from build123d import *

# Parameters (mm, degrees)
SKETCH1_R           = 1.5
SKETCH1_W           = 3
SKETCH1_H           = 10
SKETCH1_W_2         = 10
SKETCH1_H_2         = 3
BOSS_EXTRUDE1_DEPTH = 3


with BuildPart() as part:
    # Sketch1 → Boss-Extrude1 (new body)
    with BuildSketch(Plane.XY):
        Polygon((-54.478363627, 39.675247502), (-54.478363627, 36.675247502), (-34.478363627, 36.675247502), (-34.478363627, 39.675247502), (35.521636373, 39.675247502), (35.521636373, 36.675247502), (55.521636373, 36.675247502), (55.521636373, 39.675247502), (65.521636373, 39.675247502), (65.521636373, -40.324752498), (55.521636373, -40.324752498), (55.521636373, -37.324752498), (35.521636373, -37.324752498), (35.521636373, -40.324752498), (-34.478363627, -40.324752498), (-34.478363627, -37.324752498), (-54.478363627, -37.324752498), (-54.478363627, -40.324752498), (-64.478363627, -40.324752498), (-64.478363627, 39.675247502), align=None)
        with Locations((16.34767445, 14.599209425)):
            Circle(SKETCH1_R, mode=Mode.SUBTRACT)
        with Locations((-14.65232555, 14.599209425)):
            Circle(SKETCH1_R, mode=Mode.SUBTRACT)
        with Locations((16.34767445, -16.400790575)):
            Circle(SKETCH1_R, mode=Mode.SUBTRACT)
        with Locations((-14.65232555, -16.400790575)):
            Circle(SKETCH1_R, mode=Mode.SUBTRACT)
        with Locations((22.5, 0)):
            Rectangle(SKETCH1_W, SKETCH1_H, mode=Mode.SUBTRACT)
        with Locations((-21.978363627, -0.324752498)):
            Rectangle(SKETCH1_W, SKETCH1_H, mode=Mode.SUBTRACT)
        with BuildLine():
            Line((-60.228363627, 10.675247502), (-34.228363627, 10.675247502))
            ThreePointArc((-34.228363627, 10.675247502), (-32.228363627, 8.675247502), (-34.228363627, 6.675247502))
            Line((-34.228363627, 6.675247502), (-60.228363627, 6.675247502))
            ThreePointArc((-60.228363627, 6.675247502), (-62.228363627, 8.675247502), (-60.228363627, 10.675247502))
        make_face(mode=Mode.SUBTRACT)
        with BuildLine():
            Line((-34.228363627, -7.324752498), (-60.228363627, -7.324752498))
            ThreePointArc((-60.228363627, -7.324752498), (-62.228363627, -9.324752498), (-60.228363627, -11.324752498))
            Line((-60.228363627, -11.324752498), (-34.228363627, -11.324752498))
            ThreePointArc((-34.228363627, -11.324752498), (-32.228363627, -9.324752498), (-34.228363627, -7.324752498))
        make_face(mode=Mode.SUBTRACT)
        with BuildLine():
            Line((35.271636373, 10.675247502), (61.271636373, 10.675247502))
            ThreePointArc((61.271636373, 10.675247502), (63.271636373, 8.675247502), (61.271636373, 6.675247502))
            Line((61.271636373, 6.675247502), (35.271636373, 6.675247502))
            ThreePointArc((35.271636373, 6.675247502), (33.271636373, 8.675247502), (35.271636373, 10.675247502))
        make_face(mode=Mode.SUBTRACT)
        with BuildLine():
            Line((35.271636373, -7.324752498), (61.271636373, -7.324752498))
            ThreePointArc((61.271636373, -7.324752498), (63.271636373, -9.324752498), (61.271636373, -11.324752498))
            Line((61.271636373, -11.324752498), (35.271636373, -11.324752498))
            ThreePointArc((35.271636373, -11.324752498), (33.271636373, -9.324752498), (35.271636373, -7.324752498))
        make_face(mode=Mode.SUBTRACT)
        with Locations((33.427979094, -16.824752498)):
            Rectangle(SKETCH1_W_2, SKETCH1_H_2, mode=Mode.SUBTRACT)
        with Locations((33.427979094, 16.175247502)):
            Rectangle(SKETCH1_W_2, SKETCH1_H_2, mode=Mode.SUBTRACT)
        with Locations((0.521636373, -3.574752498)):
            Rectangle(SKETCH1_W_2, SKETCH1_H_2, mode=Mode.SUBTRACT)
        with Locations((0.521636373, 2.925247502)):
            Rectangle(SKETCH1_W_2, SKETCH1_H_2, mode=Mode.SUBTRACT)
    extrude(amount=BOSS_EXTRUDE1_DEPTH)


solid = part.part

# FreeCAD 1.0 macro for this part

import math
import FreeCAD as App
import Part
import Sketcher

V = App.Vector


def add_polygon(sketch, points):
    """Adds a closed chain of lines whose ends are joined by coincident constraints."""
    first, n = sketch.GeometryCount, len(points)
    for a, b in zip(points, points[1:] + points[:1]):
        sketch.addGeometry(Part.LineSegment(App.Vector(*a, 0), App.Vector(*b, 0)), False)
    for i in range(n):
        sketch.addConstraint(Sketcher.Constraint("Coincident", first + i, 2, first + (i + 1) % n, 1))

doc = App.newDocument("Part")
params = doc.addObject("Spreadsheet::Sheet", "Params")
for row, (alias, value) in enumerate([
    ("sketch1_diameter", "3 mm"),
    ("sketch1_radius", "2 mm"),
    ("sketch1_width", "10 mm"),
    ("sketch1_width2", "20 mm"),
    ("sketch1_width3", "70 mm"),
    ("pad1_length", "3 mm"),
], start=1):
    params.set(f"A{row}", alias)
    params.set(f"B{row}", "=" + value)
    params.setAlias(f"B{row}", alias)

body = doc.addObject("PartDesign::Body", "Body")

# Sketch on XY plane
sketch1 = body.newObject("Sketcher::SketchObject", "Sketch")
sketch1.AttachmentSupport = (doc.getObject("XY_Plane"), [""])
sketch1.MapMode = "FlatFace"
add_polygon(sketch1, [(-54.5, 36.7), (-54.5, 39.7), (-64.5, 39.7), (-64.5, -40.3), (-54.5, -40.3), (-54.5, -37.3), (-34.5, -37.3), (-34.5, -40.3), (35.5, -40.3), (35.5, -37.3), (55.5, -37.3), (55.5, -40.3), (65.5, -40.3), (65.5, 39.7), (55.5, 39.7), (55.5, 36.7), (35.5, 36.7), (35.5, 39.7), (-34.5, 39.7), (-34.5, 36.7)])  # lines 0-19
add_polygon(sketch1, [(28.4, -18.3), (28.4, -15.3), (38.4, -15.3), (38.4, -18.3)])  # lines 20-23
sketch1.addGeometry(Part.LineSegment(V(35.3, -7.3, 0), V(61.3, -7.3, 0)), False)  # 24
sketch1.addGeometry(Part.ArcOfCircle(Part.Circle(V(61.3, -9.3, 0), V(0, 0, 1), 2), math.radians(-90), math.radians(90)), False)  # 25
sketch1.addGeometry(Part.LineSegment(V(61.3, -11.3, 0), V(35.3, -11.3, 0)), False)  # 26
sketch1.addGeometry(Part.ArcOfCircle(Part.Circle(V(35.3, -9.3, 0), V(0, 0, 1), 2), math.radians(90), math.radians(270)), False)  # 27
sketch1.addGeometry(Part.Circle(V(16.3, -16.4, 0), V(0, 0, 1), 1.5), False)  # 28
sketch1.addGeometry(Part.Circle(V(-14.7, -16.4, 0), V(0, 0, 1), 1.5), False)  # 29
sketch1.addGeometry(Part.ArcOfCircle(Part.Circle(V(-34.2, -9.3, 0), V(0, 0, 1), 2), math.radians(-90), math.radians(90)), False)  # 30
sketch1.addGeometry(Part.LineSegment(V(-34.2, -11.3, 0), V(-60.2, -11.3, 0)), False)  # 31
sketch1.addGeometry(Part.ArcOfCircle(Part.Circle(V(-60.2, -9.3, 0), V(0, 0, 1), 2), math.radians(90), math.radians(270)), False)  # 32
sketch1.addGeometry(Part.LineSegment(V(-60.2, -7.3, 0), V(-34.2, -7.3, 0)), False)  # 33
add_polygon(sketch1, [(-4.5, -5.1), (-4.5, -2.1), (5.5, -2.1), (5.5, -5.1)])  # lines 34-37
add_polygon(sketch1, [(-23.5, -5.3), (-23.5, 4.7), (-20.5, 4.7), (-20.5, -5.3)])  # lines 38-41
sketch1.addGeometry(Part.LineSegment(V(35.3, 10.7, 0), V(61.3, 10.7, 0)), False)  # 42
sketch1.addGeometry(Part.ArcOfCircle(Part.Circle(V(61.3, 8.7, 0), V(0, 0, 1), 2), math.radians(-90), math.radians(90)), False)  # 43
sketch1.addGeometry(Part.LineSegment(V(61.3, 6.7, 0), V(35.3, 6.7, 0)), False)  # 44
sketch1.addGeometry(Part.ArcOfCircle(Part.Circle(V(35.3, 8.7, 0), V(0, 0, 1), 2), math.radians(90), math.radians(270)), False)  # 45
add_polygon(sketch1, [(21, -5), (21, 5), (24, 5), (24, -5)])  # lines 46-49
add_polygon(sketch1, [(28.4, 14.7), (28.4, 17.7), (38.4, 17.7), (38.4, 14.7)])  # lines 50-53
sketch1.addGeometry(Part.Circle(V(16.3, 14.6, 0), V(0, 0, 1), 1.5), False)  # 54
add_polygon(sketch1, [(-4.5, 1.4), (-4.5, 4.4), (5.5, 4.4), (5.5, 1.4)])  # lines 55-58
sketch1.addGeometry(Part.LineSegment(V(-60.2, 10.7, 0), V(-34.2, 10.7, 0)), False)  # 59
sketch1.addGeometry(Part.ArcOfCircle(Part.Circle(V(-34.2, 8.7, 0), V(0, 0, 1), 2), math.radians(-90), math.radians(90)), False)  # 60
sketch1.addGeometry(Part.LineSegment(V(-34.2, 6.7, 0), V(-60.2, 6.7, 0)), False)  # 61
sketch1.addGeometry(Part.ArcOfCircle(Part.Circle(V(-60.2, 8.7, 0), V(0, 0, 1), 2), math.radians(90), math.radians(270)), False)  # 62
sketch1.addGeometry(Part.Circle(V(-14.7, 14.6, 0), V(0, 0, 1), 1.5), False)  # 63
sketch1.addConstraint(Sketcher.Constraint("Tangent", 24, 2, 25, 2))
sketch1.addConstraint(Sketcher.Constraint("Tangent", 25, 1, 26, 1))
sketch1.addConstraint(Sketcher.Constraint("Tangent", 26, 2, 27, 2))
sketch1.addConstraint(Sketcher.Constraint("Tangent", 27, 1, 24, 1))
sketch1.addConstraint(Sketcher.Constraint("Tangent", 30, 1, 31, 1))
sketch1.addConstraint(Sketcher.Constraint("Tangent", 31, 2, 32, 2))
sketch1.addConstraint(Sketcher.Constraint("Tangent", 32, 1, 33, 1))
sketch1.addConstraint(Sketcher.Constraint("Tangent", 33, 2, 30, 2))
sketch1.addConstraint(Sketcher.Constraint("Tangent", 42, 2, 43, 2))
sketch1.addConstraint(Sketcher.Constraint("Tangent", 43, 1, 44, 1))
sketch1.addConstraint(Sketcher.Constraint("Tangent", 44, 2, 45, 2))
sketch1.addConstraint(Sketcher.Constraint("Tangent", 45, 1, 42, 1))
sketch1.addConstraint(Sketcher.Constraint("Tangent", 59, 2, 60, 2))
sketch1.addConstraint(Sketcher.Constraint("Tangent", 60, 1, 61, 1))
sketch1.addConstraint(Sketcher.Constraint("Tangent", 61, 2, 62, 2))
sketch1.addConstraint(Sketcher.Constraint("Tangent", 62, 1, 59, 1))
sketch1.addConstraint(Sketcher.Constraint("Vertical", 0))
sketch1.addConstraint(Sketcher.Constraint("Horizontal", 1))
sketch1.addConstraint(Sketcher.Constraint("Vertical", 2))
sketch1.addConstraint(Sketcher.Constraint("Horizontal", 3))
sketch1.addConstraint(Sketcher.Constraint("Vertical", 4))
sketch1.addConstraint(Sketcher.Constraint("Horizontal", 5))
sketch1.addConstraint(Sketcher.Constraint("Vertical", 6))
sketch1.addConstraint(Sketcher.Constraint("Horizontal", 7))
sketch1.addConstraint(Sketcher.Constraint("Vertical", 8))
sketch1.addConstraint(Sketcher.Constraint("Horizontal", 9))
sketch1.addConstraint(Sketcher.Constraint("Vertical", 10))
sketch1.addConstraint(Sketcher.Constraint("Horizontal", 11))
sketch1.addConstraint(Sketcher.Constraint("Vertical", 12))
sketch1.addConstraint(Sketcher.Constraint("Horizontal", 13))
sketch1.addConstraint(Sketcher.Constraint("Vertical", 14))
sketch1.addConstraint(Sketcher.Constraint("Horizontal", 15))
sketch1.addConstraint(Sketcher.Constraint("Vertical", 16))
sketch1.addConstraint(Sketcher.Constraint("Horizontal", 17))
sketch1.addConstraint(Sketcher.Constraint("Vertical", 18))
sketch1.addConstraint(Sketcher.Constraint("Horizontal", 19))
sketch1.addConstraint(Sketcher.Constraint("Vertical", 20))
sketch1.addConstraint(Sketcher.Constraint("Horizontal", 21))
sketch1.addConstraint(Sketcher.Constraint("Vertical", 22))
sketch1.addConstraint(Sketcher.Constraint("Horizontal", 23))
sketch1.addConstraint(Sketcher.Constraint("Horizontal", 24))
sketch1.addConstraint(Sketcher.Constraint("Horizontal", 26))
sketch1.addConstraint(Sketcher.Constraint("Horizontal", 31))
sketch1.addConstraint(Sketcher.Constraint("Horizontal", 33))
sketch1.addConstraint(Sketcher.Constraint("Vertical", 34))
sketch1.addConstraint(Sketcher.Constraint("Horizontal", 35))
sketch1.addConstraint(Sketcher.Constraint("Vertical", 36))
sketch1.addConstraint(Sketcher.Constraint("Horizontal", 37))
sketch1.addConstraint(Sketcher.Constraint("Vertical", 38))
sketch1.addConstraint(Sketcher.Constraint("Horizontal", 39))
sketch1.addConstraint(Sketcher.Constraint("Vertical", 40))
sketch1.addConstraint(Sketcher.Constraint("Horizontal", 41))
sketch1.addConstraint(Sketcher.Constraint("Horizontal", 42))
sketch1.addConstraint(Sketcher.Constraint("Horizontal", 44))
sketch1.addConstraint(Sketcher.Constraint("Vertical", 46))
sketch1.addConstraint(Sketcher.Constraint("Horizontal", 47))
sketch1.addConstraint(Sketcher.Constraint("Vertical", 48))
sketch1.addConstraint(Sketcher.Constraint("Horizontal", 49))
sketch1.addConstraint(Sketcher.Constraint("Vertical", 50))
sketch1.addConstraint(Sketcher.Constraint("Horizontal", 51))
sketch1.addConstraint(Sketcher.Constraint("Vertical", 52))
sketch1.addConstraint(Sketcher.Constraint("Horizontal", 53))
sketch1.addConstraint(Sketcher.Constraint("Vertical", 55))
sketch1.addConstraint(Sketcher.Constraint("Horizontal", 56))
sketch1.addConstraint(Sketcher.Constraint("Vertical", 57))
sketch1.addConstraint(Sketcher.Constraint("Horizontal", 58))
sketch1.addConstraint(Sketcher.Constraint("Horizontal", 59))
sketch1.addConstraint(Sketcher.Constraint("Horizontal", 61))
sketch1.addConstraint(Sketcher.Constraint("Equal", 28, 29))
sketch1.addConstraint(Sketcher.Constraint("Equal", 27, 30))
sketch1.addConstraint(Sketcher.Constraint("Equal", 32, 43))
sketch1.addConstraint(Sketcher.Constraint("Equal", 29, 54))
sketch1.addConstraint(Sketcher.Constraint("Equal", 45, 60))
sketch1.addConstraint(Sketcher.Constraint("Equal", 54, 63))
sketch1.addConstraint(Sketcher.Constraint("Horizontal", 28, 3, 29, 3))
sketch1.addConstraint(Sketcher.Constraint("Horizontal", 27, 3, 30, 3))
sketch1.addConstraint(Sketcher.Constraint("Horizontal", 45, 3, 60, 3))
sketch1.addConstraint(Sketcher.Constraint("Horizontal", 54, 3, 63, 3))
sketch1.addConstraint(Sketcher.Constraint("Horizontal", 3, 2, 6, 2))
sketch1.addConstraint(Sketcher.Constraint("Horizontal", 5, 2, 8, 2))
sketch1.addConstraint(Sketcher.Constraint("Horizontal", 7, 2, 10, 2))
sketch1.addConstraint(Sketcher.Constraint("Horizontal", 1, 2, 12, 2))
sketch1.addConstraint(Sketcher.Constraint("Horizontal", 13, 2, 16, 2))
sketch1.addConstraint(Sketcher.Constraint("Horizontal", 15, 2, 18, 2))
sketch1.addConstraint(Sketcher.Constraint("Vertical", 25, 3, 43, 3))
sketch1.addConstraint(Sketcher.Constraint("Vertical", 27, 3, 45, 3))
sketch1.addConstraint(Sketcher.Constraint("Vertical", 28, 3, 54, 3))
sketch1.addConstraint(Sketcher.Constraint("Vertical", 30, 3, 60, 3))
sketch1.addConstraint(Sketcher.Constraint("Vertical", 32, 3, 62, 3))
sketch1.addConstraint(Sketcher.Constraint("Vertical", 29, 3, 63, 3))
sketch1.addConstraint(Sketcher.Constraint("Vertical", 0, 2, 3, 2))
sketch1.addConstraint(Sketcher.Constraint("Vertical", 10, 2, 13, 2))
sketch1.addConstraint(Sketcher.Constraint("Vertical", 8, 2, 15, 2))
sketch1.addConstraint(Sketcher.Constraint("Vertical", 6, 2, 17, 2))
sketch1.addConstraint(Sketcher.Constraint("Vertical", 23, 2, 50, 2))
sketch1.addConstraint(Sketcher.Constraint("Vertical", 22, 2, 51, 2))
sketch1.addConstraint(Sketcher.Constraint("Vertical", 37, 2, 55, 2))
sketch1.addConstraint(Sketcher.Constraint("Vertical", 36, 2, 56, 2))
sketch1.addConstraint(Sketcher.Constraint("Equal", 5, 9))
sketch1.addConstraint(Sketcher.Constraint("Equal", 3, 11))
sketch1.addConstraint(Sketcher.Constraint("Equal", 13, 21))
sketch1.addConstraint(Sketcher.Constraint("Equal", 26, 31))
sketch1.addConstraint(Sketcher.Constraint("Equal", 23, 35))
sketch1.addConstraint(Sketcher.Constraint("Equal", 41, 47))
sketch1.addConstraint(Sketcher.Constraint("Equal", 49, 0))
sketch1.addConstraint(Sketcher.Constraint("Equal", 0, 4))
sketch1.addConstraint(Sketcher.Constraint("Equal", 18, 20))
sketch1.addConstraint(Sketcher.Constraint("Equal", 22, 34))
sketch1.addConstraint(Sketcher.Constraint("Equal", 58, 38))
sketch1.addConstraint(Sketcher.Constraint("Equal", 40, 46))
sketch1.addConstraint(Sketcher.Constraint("Equal", 36, 50))
sketch1.addConstraint(Sketcher.Constraint("Equal", 52, 55))
sketch1.addConstraint(Sketcher.Constraint("Diameter", 28, 3.0))
sketch1.addConstraint(Sketcher.Constraint("Radius", 25, 2.0))
sketch1.addConstraint(Sketcher.Constraint("DistanceX", 1, 2, 1, 1, 10.0))
sketch1.addConstraint(Sketcher.Constraint("DistanceX", 5, 1, 5, 2, 20.0))
sketch1.addConstraint(Sketcher.Constraint("DistanceX", 7, 1, 7, 2, 70.0))
sketch1.addConstraint(Sketcher.Constraint("DistanceX", 24, 1, 24, 2, 26.0))
sketch1.addConstraint(Sketcher.Constraint("DistanceX", 39, 1, 39, 2, 3.0))
sketch1.addConstraint(Sketcher.Constraint("DistanceY", 2, 2, 2, 1, 80.0))
sketch1.addConstraint(Sketcher.Constraint("DistanceX", -1, 1, 46, 2, 21.0))
sketch1.addConstraint(Sketcher.Constraint("DistanceY", -1, 1, 46, 2, 5.0))
sketch1.addConstraint(Sketcher.Constraint("DistanceY", 28, 3, -1, 1, 16.400791))
sketch1.addConstraint(Sketcher.Constraint("DistanceY", -1, 1, 54, 3, 14.599209))
sketch1.addConstraint(Sketcher.Constraint("DistanceX", -1, 1, 20, 2, 28.427979))
sketch1.addConstraint(Sketcher.Constraint("DistanceX", -1, 1, 25, 3, 61.271636))
sketch1.addConstraint(Sketcher.Constraint("DistanceY", 25, 3, -1, 1, 9.324752))
sketch1.addConstraint(Sketcher.Constraint("DistanceX", -1, 1, 28, 3, 16.347674))
sketch1.addConstraint(Sketcher.Constraint("DistanceX", 29, 3, -1, 1, 14.652326))
sketch1.addConstraint(Sketcher.Constraint("DistanceX", 30, 3, -1, 1, 34.228364))
sketch1.addConstraint(Sketcher.Constraint("DistanceY", -1, 1, 43, 3, 8.675248))
sketch1.addConstraint(Sketcher.Constraint("DistanceX", 0, 2, -1, 1, 54.478364))
sketch1.addConstraint(Sketcher.Constraint("DistanceY", -1, 1, 0, 2, 39.675248))
sketch1.addConstraint(Sketcher.Constraint("DistanceY", 20, 2, -1, 1, 15.324752))
sketch1.addConstraint(Sketcher.Constraint("DistanceX", 34, 2, -1, 1, 4.478364))
sketch1.addConstraint(Sketcher.Constraint("DistanceY", 34, 2, -1, 1, 2.074752))
sketch1.addConstraint(Sketcher.Constraint("DistanceX", 38, 2, -1, 1, 23.478364))
sketch1.addConstraint(Sketcher.Constraint("DistanceY", -1, 1, 38, 2, 4.675248))
sketch1.addConstraint(Sketcher.Constraint("DistanceY", -1, 1, 50, 2, 17.675248))
sketch1.addConstraint(Sketcher.Constraint("DistanceY", -1, 1, 55, 2, 4.425248))
sketch1.setExpression("Constraints[156]", "Params.sketch1_diameter")
sketch1.setExpression("Constraints[157]", "Params.sketch1_radius")
sketch1.setExpression("Constraints[158]", "Params.sketch1_width")
sketch1.setExpression("Constraints[159]", "Params.sketch1_width2")
sketch1.setExpression("Constraints[160]", "Params.sketch1_width3")
pad1 = body.newObject("PartDesign::Pad", "Pad")
pad1.Profile = sketch1
pad1.setExpression("Length", "Params.pad1_length")

doc.recompute()
